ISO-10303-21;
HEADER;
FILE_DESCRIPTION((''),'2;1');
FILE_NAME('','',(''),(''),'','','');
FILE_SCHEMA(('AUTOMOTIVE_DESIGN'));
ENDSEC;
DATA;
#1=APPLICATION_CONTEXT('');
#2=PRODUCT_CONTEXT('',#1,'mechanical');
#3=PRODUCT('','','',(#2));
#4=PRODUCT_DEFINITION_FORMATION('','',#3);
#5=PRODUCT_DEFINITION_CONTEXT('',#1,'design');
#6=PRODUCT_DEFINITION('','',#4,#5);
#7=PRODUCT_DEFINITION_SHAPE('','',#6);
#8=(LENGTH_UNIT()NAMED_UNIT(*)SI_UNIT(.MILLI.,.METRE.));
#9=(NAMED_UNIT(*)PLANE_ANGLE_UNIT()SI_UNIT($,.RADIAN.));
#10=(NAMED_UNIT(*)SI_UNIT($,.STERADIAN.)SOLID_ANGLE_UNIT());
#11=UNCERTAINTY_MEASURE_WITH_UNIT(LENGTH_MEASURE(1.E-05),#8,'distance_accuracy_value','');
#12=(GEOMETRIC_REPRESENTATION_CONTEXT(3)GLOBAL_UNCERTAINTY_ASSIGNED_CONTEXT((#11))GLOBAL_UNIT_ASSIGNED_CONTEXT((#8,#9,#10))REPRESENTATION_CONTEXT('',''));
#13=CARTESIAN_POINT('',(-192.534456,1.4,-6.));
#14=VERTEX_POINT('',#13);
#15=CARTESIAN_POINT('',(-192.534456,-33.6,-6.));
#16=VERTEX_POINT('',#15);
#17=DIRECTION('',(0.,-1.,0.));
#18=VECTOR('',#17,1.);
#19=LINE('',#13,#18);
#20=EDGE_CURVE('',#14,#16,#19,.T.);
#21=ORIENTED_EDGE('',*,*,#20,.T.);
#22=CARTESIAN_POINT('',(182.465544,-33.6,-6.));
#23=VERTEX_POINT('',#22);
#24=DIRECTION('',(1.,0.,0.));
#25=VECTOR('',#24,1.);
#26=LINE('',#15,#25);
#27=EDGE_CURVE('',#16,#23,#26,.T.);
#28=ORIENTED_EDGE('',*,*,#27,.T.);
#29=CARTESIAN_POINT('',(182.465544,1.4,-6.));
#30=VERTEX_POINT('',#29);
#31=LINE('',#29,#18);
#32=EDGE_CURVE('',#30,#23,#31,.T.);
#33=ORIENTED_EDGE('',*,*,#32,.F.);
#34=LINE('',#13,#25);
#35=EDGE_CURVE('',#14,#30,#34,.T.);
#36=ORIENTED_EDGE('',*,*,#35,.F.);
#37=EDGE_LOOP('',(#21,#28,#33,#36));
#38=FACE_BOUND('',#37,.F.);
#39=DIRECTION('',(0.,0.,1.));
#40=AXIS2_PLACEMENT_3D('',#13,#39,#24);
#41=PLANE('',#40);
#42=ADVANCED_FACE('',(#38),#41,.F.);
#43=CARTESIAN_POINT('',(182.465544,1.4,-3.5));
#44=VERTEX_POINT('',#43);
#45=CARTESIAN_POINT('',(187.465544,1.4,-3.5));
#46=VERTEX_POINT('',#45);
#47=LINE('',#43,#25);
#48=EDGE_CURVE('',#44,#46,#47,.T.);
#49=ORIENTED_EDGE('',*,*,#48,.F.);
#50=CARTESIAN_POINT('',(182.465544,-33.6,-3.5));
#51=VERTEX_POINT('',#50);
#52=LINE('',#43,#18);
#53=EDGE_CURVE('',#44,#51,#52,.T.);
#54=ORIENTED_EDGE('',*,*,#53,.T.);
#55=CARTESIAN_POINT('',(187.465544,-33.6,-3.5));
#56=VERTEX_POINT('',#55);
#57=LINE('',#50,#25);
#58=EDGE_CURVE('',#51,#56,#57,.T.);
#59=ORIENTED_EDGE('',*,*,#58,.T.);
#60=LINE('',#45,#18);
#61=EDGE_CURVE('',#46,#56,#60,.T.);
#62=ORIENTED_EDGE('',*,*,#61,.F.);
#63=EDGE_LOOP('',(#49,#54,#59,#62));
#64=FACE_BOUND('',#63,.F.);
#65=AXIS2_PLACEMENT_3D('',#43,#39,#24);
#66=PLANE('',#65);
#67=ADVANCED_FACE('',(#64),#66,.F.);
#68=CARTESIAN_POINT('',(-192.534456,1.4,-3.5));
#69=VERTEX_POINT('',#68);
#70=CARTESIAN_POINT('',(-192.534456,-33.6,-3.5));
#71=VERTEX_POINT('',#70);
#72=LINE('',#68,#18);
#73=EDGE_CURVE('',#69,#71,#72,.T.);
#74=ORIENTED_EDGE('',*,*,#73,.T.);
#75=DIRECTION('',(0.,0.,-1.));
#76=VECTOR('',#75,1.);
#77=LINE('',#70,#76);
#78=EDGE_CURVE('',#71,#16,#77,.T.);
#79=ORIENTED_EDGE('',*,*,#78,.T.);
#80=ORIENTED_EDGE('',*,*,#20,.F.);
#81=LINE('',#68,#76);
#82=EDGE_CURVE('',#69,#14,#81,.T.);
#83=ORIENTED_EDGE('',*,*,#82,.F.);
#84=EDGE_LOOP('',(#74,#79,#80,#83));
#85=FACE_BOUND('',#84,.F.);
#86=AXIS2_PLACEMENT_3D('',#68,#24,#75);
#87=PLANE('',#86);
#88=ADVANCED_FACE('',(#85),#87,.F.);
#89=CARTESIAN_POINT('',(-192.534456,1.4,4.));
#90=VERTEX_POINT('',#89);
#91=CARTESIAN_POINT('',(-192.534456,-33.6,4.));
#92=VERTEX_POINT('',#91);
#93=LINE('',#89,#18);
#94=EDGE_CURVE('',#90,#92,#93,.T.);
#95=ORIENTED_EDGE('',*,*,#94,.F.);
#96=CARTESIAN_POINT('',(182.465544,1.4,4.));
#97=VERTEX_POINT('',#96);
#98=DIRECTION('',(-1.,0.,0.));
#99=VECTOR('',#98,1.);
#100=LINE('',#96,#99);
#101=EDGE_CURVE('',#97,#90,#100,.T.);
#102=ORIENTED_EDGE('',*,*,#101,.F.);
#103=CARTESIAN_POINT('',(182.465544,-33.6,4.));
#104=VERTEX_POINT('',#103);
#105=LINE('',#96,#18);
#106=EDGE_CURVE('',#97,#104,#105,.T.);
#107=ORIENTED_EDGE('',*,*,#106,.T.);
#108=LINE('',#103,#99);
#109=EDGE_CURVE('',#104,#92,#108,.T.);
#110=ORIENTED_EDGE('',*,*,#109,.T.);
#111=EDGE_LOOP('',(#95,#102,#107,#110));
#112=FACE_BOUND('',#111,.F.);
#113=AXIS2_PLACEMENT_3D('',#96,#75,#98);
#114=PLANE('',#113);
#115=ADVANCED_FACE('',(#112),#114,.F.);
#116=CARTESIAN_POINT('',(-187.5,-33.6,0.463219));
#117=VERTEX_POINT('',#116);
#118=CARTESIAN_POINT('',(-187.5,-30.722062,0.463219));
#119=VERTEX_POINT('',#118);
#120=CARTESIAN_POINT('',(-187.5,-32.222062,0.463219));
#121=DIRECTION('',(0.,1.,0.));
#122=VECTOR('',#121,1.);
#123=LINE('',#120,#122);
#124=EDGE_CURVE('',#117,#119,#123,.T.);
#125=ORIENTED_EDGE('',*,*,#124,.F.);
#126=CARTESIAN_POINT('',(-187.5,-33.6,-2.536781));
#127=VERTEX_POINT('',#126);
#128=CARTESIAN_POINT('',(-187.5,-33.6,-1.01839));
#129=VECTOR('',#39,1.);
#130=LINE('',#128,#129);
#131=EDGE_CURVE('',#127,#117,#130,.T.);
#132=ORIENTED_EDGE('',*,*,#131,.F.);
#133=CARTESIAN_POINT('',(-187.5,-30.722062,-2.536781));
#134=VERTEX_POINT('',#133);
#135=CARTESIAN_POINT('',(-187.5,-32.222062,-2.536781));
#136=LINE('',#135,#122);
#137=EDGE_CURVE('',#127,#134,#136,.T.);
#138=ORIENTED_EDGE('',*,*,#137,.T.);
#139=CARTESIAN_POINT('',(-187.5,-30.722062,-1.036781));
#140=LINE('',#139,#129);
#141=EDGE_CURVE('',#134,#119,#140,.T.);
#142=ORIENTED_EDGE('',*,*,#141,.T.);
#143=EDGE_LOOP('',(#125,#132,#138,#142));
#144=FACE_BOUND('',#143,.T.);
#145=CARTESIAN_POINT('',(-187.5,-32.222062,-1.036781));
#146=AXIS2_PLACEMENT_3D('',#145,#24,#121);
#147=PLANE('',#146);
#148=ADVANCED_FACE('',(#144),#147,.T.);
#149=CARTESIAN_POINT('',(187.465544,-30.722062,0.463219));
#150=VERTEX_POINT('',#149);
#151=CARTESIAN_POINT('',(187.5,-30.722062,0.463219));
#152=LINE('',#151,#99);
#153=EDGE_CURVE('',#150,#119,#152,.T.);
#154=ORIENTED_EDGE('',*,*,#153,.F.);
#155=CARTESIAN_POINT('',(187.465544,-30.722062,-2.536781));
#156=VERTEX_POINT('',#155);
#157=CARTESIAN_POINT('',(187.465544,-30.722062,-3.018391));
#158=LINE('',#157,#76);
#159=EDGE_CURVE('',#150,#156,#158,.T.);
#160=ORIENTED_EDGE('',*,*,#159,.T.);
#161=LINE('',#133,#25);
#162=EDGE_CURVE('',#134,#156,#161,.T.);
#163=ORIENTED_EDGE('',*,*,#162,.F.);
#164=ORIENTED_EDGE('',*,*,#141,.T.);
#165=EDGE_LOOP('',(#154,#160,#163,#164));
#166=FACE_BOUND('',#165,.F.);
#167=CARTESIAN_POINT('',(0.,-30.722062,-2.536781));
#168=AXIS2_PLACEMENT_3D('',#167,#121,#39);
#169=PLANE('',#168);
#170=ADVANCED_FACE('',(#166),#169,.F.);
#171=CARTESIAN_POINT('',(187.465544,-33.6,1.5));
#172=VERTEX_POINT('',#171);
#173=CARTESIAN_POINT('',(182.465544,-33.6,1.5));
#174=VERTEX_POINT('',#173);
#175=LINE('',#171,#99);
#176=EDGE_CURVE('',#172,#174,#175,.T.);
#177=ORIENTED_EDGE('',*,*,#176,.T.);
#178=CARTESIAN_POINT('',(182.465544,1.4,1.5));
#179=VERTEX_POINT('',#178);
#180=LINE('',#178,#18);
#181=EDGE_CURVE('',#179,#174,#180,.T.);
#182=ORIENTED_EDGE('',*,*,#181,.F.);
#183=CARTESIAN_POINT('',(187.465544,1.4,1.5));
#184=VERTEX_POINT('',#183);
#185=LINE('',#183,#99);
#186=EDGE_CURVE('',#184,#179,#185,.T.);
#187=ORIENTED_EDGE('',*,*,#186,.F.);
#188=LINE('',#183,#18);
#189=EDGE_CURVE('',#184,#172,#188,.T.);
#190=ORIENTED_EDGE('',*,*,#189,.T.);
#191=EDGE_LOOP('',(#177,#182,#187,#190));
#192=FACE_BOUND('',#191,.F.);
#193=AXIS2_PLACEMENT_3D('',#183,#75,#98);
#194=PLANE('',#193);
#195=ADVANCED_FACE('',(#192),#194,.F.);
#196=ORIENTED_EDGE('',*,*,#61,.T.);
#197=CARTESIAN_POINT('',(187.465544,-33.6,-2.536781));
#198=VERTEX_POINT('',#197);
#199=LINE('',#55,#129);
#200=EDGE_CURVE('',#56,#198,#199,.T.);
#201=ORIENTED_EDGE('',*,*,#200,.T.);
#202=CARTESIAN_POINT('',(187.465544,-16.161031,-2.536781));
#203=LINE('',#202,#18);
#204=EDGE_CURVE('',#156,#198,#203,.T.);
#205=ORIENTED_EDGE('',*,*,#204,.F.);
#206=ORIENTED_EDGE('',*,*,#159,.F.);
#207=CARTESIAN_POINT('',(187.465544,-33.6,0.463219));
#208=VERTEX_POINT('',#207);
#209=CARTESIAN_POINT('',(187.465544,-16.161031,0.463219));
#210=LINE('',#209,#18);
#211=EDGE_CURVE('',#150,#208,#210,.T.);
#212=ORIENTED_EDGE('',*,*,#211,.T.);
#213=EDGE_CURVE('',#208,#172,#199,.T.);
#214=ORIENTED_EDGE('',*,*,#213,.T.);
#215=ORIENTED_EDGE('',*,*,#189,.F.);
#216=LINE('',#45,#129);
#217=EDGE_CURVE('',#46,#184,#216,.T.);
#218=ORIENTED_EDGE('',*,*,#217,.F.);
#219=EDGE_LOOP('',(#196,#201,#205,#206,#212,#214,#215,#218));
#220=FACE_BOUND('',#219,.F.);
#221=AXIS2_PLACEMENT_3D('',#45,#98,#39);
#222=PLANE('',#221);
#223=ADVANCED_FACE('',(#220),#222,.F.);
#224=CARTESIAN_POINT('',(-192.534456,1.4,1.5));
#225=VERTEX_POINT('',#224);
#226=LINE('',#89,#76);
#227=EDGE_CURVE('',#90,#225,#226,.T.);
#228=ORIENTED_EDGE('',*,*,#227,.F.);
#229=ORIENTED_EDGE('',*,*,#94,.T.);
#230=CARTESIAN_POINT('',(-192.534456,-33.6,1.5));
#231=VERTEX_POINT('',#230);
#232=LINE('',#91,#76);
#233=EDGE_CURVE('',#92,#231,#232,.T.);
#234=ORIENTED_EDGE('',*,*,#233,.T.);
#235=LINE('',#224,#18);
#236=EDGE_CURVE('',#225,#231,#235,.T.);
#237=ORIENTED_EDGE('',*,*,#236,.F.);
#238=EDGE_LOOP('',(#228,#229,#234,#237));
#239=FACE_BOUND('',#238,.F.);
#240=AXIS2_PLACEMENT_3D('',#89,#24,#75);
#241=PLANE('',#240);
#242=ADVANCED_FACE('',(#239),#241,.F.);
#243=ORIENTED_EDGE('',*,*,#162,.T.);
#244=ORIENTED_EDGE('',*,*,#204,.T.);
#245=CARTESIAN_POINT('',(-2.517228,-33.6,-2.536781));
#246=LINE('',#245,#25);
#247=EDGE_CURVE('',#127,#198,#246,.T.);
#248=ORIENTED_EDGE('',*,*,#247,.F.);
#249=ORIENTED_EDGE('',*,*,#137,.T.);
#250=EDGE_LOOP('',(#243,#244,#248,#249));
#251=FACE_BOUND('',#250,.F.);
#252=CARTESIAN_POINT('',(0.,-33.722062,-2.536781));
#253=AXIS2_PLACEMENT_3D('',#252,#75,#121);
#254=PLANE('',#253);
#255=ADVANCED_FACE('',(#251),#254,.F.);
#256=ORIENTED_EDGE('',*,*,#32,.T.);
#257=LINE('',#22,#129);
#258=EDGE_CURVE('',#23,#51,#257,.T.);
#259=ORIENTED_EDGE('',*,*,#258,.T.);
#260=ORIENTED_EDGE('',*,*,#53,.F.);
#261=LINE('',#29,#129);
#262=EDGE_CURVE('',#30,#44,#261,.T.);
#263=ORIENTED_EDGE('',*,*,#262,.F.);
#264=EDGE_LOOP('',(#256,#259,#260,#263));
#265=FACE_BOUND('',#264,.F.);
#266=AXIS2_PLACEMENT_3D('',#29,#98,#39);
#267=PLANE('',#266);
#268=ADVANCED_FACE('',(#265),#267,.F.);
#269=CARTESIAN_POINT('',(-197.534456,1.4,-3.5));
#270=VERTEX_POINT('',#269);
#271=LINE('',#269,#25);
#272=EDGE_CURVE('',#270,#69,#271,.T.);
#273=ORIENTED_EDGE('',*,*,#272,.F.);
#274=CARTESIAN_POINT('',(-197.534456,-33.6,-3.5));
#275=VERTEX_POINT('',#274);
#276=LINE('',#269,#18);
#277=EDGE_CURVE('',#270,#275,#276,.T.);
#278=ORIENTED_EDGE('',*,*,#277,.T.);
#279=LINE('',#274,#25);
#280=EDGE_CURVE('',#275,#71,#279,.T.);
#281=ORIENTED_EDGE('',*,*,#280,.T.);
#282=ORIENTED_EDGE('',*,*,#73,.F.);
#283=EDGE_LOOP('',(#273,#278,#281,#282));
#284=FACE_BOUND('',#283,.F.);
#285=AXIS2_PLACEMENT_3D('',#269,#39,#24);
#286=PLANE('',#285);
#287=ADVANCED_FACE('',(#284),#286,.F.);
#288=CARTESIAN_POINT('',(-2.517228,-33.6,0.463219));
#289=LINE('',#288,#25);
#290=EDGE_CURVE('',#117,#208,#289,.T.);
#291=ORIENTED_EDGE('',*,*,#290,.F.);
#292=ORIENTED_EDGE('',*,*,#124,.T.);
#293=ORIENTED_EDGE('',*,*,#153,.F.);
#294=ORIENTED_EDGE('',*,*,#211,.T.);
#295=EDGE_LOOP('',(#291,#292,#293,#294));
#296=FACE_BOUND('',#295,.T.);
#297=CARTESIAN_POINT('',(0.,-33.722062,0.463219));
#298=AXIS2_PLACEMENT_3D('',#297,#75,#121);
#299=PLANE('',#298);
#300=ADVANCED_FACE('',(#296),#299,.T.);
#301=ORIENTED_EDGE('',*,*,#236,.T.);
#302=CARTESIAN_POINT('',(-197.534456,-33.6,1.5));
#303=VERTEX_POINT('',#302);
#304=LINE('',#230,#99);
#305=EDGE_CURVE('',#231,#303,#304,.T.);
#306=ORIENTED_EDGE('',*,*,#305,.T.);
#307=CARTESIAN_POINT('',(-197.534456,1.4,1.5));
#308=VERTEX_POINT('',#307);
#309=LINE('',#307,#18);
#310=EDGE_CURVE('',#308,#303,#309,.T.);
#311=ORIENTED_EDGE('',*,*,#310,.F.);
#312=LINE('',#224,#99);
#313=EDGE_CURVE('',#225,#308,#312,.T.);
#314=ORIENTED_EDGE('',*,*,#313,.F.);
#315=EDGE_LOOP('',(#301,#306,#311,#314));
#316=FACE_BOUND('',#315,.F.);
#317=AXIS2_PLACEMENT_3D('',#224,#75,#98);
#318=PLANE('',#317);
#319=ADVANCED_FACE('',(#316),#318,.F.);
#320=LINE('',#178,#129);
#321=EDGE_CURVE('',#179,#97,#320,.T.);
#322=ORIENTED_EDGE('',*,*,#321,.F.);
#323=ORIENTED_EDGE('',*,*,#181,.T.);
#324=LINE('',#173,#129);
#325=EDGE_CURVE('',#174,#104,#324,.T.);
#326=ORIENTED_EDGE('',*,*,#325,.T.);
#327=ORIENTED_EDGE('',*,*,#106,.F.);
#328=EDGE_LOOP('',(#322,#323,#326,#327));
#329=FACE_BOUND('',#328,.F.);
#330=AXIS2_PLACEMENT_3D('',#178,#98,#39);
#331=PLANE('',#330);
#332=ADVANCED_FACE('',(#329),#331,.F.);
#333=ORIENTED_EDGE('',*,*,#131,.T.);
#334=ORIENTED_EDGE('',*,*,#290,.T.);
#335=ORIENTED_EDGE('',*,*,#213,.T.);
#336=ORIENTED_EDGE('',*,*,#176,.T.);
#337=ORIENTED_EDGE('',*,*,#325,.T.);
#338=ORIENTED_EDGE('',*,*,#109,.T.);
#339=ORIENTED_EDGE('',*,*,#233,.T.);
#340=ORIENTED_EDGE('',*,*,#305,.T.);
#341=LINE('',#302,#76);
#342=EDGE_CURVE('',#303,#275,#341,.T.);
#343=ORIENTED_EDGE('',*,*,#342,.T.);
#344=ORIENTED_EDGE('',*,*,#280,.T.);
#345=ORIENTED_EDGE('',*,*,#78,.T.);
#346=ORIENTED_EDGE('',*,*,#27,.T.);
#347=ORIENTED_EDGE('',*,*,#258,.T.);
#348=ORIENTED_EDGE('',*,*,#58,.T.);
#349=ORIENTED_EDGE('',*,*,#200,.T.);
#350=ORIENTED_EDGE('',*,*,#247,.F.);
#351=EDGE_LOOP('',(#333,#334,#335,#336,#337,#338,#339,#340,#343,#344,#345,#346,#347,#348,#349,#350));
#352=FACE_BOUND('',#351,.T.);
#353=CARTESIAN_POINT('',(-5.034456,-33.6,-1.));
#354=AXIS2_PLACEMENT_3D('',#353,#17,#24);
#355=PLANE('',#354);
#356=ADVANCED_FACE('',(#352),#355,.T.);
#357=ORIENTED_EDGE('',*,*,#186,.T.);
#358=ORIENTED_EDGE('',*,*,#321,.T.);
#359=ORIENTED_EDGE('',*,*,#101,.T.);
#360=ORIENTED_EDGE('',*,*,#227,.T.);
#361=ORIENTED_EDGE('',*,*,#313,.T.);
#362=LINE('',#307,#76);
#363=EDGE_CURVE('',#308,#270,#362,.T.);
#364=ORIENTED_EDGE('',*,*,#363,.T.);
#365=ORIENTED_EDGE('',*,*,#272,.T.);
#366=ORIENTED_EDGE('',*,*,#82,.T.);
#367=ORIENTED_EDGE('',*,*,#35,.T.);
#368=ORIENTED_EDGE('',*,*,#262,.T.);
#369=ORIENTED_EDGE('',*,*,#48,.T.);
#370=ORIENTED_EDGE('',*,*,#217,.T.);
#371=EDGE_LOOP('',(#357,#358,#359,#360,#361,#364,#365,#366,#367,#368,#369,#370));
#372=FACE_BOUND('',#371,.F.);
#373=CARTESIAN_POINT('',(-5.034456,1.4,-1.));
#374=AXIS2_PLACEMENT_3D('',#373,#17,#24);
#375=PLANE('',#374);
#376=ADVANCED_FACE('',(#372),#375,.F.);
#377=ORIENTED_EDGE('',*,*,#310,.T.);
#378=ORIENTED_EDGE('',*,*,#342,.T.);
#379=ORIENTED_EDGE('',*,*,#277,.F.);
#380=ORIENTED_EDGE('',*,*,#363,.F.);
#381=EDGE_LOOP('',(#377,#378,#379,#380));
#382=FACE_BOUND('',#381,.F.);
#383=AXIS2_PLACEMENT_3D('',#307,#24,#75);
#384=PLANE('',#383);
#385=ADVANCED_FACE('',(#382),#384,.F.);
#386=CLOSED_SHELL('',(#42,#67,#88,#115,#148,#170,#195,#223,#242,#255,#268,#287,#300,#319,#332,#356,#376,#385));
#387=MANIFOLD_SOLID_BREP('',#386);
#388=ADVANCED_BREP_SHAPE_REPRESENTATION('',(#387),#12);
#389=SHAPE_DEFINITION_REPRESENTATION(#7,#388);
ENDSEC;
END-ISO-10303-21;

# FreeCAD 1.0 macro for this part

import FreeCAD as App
import Part
import Sketcher
from FreeCAD import Vector
Q = App.Units.Quantity


def add_polygon(sketch, points):
    """Adds a closed chain of lines whose ends are joined by coincident constraints."""
    first, n = sketch.GeometryCount, len(points)
    for a, b in zip(points, points[1:] + points[:1]):
        sketch.addGeometry(Part.LineSegment(App.Vector(*a, 0), App.Vector(*b, 0)), False)
    for i in range(n):
        sketch.addConstraint(Sketcher.Constraint("Coincident", first + i, 2, first + (i + 1) % n, 1))

doc = App.newDocument("Part")
body = doc.addObject("PartDesign::Body", "Body")

sketch1 = doc.addObject("Sketcher::SketchObject", "Sketch")
body.addObject(sketch1)
sketch1.AttachmentSupport = (doc.XZ_Plane, [""])
sketch1.MapMode = "FlatFace"
add_polygon(sketch1, [(-226.9, 2.5), (-226.9, -2.5), (-221.9, -2.5), (-221.9, -5), (153.1, -5), (153.1, -2.5), (158.1, -2.5), (158.1, 2.5), (153.1, 2.5), (153.1, 5), (-221.9, 5), (-221.9, 2.5)])
sketch1.addConstraint(Sketcher.Constraint("Vertical", 0))
sketch1.addConstraint(Sketcher.Constraint("Horizontal", 1))
sketch1.addConstraint(Sketcher.Constraint("Vertical", 2))
sketch1.addConstraint(Sketcher.Constraint("Horizontal", 3))
sketch1.addConstraint(Sketcher.Constraint("Vertical", 4))
sketch1.addConstraint(Sketcher.Constraint("Horizontal", 5))
sketch1.addConstraint(Sketcher.Constraint("Vertical", 6))
sketch1.addConstraint(Sketcher.Constraint("Horizontal", 7))
sketch1.addConstraint(Sketcher.Constraint("Vertical", 8))
sketch1.addConstraint(Sketcher.Constraint("Horizontal", 9))
sketch1.addConstraint(Sketcher.Constraint("Vertical", 10))
sketch1.addConstraint(Sketcher.Constraint("Horizontal", 11))
sketch1.addConstraint(Sketcher.Constraint("Symmetric", 4, 2, 7, 2, -1))
sketch1.addConstraint(Sketcher.Constraint("Symmetric", 2, 2, 9, 2, -1))
sketch1.addConstraint(Sketcher.Constraint("Horizontal", 1, 2, 4, 2))
sketch1.addConstraint(Sketcher.Constraint("Horizontal", 7, 2, 10, 2))
sketch1.addConstraint(Sketcher.Constraint("Equal", 1, 5))
sketch1.addConstraint(Sketcher.Constraint("Equal", 11, 0))
sketch1.addConstraint(Sketcher.Constraint("DistanceX", 1, 1, 1, 2, Q("5 mm")))
sketch1.addConstraint(Sketcher.Constraint("DistanceX", 3, 1, 3, 2, Q("375 mm")))
sketch1.addConstraint(Sketcher.Constraint("DistanceY", 2, 2, 2, 1, Q("2.5 mm")))
sketch1.addConstraint(Sketcher.Constraint("DistanceX", 0, 2, -1, 1, Q("226.934456 mm")))
pad1 = doc.addObject("PartDesign::Pad", "Pad")
body.addObject(pad1)
pad1.Profile = sketch1
pad1.Length = 35
body2 = doc.addObject("PartDesign::Body", "Body001")

sketch2 = doc.addObject("Sketcher::SketchObject", "Sketch001")
body2.addObject(sketch2)
sketch2.AttachmentSupport = (doc.getObject("YZ_Plane001"), [""])
sketch2.MapMode = "FlatFace"
add_polygon(sketch2, [(-33.7, 0.5), (-33.7, -2.5), (-30.7, -2.5), (-30.7, 0.5)])
sketch2.addConstraint(Sketcher.Constraint("Vertical", 0))
sketch2.addConstraint(Sketcher.Constraint("Horizontal", 1))
sketch2.addConstraint(Sketcher.Constraint("Vertical", 2))
sketch2.addConstraint(Sketcher.Constraint("Horizontal", 3))
sketch2.addConstraint(Sketcher.Constraint("Equal", 3, 0))
sketch2.addConstraint(Sketcher.Constraint("DistanceX", 1, 1, 1, 2, Q("3 mm")))
sketch2.addConstraint(Sketcher.Constraint("DistanceY", 0, 2, -1, 1, Q("2.536781 mm")))
sketch2.addConstraint(Sketcher.Constraint("DistanceX", 0, 2, -1, 1, Q("33.722062 mm")))
pad2 = doc.addObject("PartDesign::Pad", "Pad001")
body2.addObject(pad2)
pad2.Profile = sketch2
pad2.Type = "TwoLengths"
pad2.Length = 187.5
pad2.Length2 = 187.5
body3 = doc.addObject("PartDesign::Body", "Body002")
doc.recompute()

body.Placement = App.Placement(Vector(29.4, 1.4, -1), App.Rotation(Vector(0, 0, 1), 0))
boolean = doc.addObject("PartDesign::Boolean", "Boolean")
body3.addObject(boolean)
boolean.Type = "Fuse"
boolean.addObjects([body])
doc.recompute()

boolean2 = doc.addObject("PartDesign::Boolean", "Boolean001")
body3.addObject(boolean2)
boolean2.Type = "Cut"
boolean2.addObjects([body2])

doc.recompute()
